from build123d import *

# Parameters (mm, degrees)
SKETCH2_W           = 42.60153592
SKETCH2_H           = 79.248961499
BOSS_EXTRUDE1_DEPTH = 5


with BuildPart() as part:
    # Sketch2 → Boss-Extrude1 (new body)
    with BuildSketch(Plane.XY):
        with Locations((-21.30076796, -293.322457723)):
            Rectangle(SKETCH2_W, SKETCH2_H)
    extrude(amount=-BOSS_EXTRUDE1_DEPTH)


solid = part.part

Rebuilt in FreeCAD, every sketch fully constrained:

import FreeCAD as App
import Part
import Sketcher

V = App.Vector

doc = App.newDocument("Part")
body = doc.addObject("PartDesign::Body", "Body")

# Sketch on XY plane
sketch1 = body.newObject("Sketcher::SketchObject", "Sketch")
sketch1.AttachmentSupport = (doc.getObject("XY_Plane"), [""])
sketch1.MapMode = "FlatFace"
sketch1.addGeometry(Part.LineSegment(V(-42.601536, -253.697977, 0), V(-42.601536, -332.946938, 0)), False)
sketch1.addGeometry(Part.LineSegment(V(-42.601536, -332.946938, 0), V(0, -332.946938, 0)), False)
sketch1.addGeometry(Part.LineSegment(V(0, -332.946938, 0), V(0, -253.697977, 0)), False)
sketch1.addGeometry(Part.LineSegment(V(0, -253.697977, 0), V(-42.601536, -253.697977, 0)), False)
sketch1.addConstraint(Sketcher.Constraint("Coincident", 0, 2, 1, 1))
sketch1.addConstraint(Sketcher.Constraint("Coincident", 1, 2, 2, 1))
sketch1.addConstraint(Sketcher.Constraint("Coincident", 2, 2, 3, 1))
sketch1.addConstraint(Sketcher.Constraint("Coincident", 3, 2, 0, 1))
sketch1.addConstraint(Sketcher.Constraint("Vertical", 0))
sketch1.addConstraint(Sketcher.Constraint("Horizontal", 1))
sketch1.addConstraint(Sketcher.Constraint("Vertical", 2))
sketch1.addConstraint(Sketcher.Constraint("Horizontal", 3))
sketch1.addConstraint(Sketcher.Constraint("PointOnObject", 1, 2, -2))
sketch1.addConstraint(Sketcher.Constraint("DistanceY", 0, 2, 0, 1, 79.248961))
sketch1.addConstraint(Sketcher.Constraint("DistanceX", 1, 1, 1, 2, 42.601536))
sketch1.addConstraint(Sketcher.Constraint("DistanceY", 0, 2, -1, 1, 332.946938))
pad1 = body.newObject("PartDesign::Pad", "Pad")
pad1.Profile = sketch1
pad1.Length = 5
pad1.Reversed = True

doc.recompute()
